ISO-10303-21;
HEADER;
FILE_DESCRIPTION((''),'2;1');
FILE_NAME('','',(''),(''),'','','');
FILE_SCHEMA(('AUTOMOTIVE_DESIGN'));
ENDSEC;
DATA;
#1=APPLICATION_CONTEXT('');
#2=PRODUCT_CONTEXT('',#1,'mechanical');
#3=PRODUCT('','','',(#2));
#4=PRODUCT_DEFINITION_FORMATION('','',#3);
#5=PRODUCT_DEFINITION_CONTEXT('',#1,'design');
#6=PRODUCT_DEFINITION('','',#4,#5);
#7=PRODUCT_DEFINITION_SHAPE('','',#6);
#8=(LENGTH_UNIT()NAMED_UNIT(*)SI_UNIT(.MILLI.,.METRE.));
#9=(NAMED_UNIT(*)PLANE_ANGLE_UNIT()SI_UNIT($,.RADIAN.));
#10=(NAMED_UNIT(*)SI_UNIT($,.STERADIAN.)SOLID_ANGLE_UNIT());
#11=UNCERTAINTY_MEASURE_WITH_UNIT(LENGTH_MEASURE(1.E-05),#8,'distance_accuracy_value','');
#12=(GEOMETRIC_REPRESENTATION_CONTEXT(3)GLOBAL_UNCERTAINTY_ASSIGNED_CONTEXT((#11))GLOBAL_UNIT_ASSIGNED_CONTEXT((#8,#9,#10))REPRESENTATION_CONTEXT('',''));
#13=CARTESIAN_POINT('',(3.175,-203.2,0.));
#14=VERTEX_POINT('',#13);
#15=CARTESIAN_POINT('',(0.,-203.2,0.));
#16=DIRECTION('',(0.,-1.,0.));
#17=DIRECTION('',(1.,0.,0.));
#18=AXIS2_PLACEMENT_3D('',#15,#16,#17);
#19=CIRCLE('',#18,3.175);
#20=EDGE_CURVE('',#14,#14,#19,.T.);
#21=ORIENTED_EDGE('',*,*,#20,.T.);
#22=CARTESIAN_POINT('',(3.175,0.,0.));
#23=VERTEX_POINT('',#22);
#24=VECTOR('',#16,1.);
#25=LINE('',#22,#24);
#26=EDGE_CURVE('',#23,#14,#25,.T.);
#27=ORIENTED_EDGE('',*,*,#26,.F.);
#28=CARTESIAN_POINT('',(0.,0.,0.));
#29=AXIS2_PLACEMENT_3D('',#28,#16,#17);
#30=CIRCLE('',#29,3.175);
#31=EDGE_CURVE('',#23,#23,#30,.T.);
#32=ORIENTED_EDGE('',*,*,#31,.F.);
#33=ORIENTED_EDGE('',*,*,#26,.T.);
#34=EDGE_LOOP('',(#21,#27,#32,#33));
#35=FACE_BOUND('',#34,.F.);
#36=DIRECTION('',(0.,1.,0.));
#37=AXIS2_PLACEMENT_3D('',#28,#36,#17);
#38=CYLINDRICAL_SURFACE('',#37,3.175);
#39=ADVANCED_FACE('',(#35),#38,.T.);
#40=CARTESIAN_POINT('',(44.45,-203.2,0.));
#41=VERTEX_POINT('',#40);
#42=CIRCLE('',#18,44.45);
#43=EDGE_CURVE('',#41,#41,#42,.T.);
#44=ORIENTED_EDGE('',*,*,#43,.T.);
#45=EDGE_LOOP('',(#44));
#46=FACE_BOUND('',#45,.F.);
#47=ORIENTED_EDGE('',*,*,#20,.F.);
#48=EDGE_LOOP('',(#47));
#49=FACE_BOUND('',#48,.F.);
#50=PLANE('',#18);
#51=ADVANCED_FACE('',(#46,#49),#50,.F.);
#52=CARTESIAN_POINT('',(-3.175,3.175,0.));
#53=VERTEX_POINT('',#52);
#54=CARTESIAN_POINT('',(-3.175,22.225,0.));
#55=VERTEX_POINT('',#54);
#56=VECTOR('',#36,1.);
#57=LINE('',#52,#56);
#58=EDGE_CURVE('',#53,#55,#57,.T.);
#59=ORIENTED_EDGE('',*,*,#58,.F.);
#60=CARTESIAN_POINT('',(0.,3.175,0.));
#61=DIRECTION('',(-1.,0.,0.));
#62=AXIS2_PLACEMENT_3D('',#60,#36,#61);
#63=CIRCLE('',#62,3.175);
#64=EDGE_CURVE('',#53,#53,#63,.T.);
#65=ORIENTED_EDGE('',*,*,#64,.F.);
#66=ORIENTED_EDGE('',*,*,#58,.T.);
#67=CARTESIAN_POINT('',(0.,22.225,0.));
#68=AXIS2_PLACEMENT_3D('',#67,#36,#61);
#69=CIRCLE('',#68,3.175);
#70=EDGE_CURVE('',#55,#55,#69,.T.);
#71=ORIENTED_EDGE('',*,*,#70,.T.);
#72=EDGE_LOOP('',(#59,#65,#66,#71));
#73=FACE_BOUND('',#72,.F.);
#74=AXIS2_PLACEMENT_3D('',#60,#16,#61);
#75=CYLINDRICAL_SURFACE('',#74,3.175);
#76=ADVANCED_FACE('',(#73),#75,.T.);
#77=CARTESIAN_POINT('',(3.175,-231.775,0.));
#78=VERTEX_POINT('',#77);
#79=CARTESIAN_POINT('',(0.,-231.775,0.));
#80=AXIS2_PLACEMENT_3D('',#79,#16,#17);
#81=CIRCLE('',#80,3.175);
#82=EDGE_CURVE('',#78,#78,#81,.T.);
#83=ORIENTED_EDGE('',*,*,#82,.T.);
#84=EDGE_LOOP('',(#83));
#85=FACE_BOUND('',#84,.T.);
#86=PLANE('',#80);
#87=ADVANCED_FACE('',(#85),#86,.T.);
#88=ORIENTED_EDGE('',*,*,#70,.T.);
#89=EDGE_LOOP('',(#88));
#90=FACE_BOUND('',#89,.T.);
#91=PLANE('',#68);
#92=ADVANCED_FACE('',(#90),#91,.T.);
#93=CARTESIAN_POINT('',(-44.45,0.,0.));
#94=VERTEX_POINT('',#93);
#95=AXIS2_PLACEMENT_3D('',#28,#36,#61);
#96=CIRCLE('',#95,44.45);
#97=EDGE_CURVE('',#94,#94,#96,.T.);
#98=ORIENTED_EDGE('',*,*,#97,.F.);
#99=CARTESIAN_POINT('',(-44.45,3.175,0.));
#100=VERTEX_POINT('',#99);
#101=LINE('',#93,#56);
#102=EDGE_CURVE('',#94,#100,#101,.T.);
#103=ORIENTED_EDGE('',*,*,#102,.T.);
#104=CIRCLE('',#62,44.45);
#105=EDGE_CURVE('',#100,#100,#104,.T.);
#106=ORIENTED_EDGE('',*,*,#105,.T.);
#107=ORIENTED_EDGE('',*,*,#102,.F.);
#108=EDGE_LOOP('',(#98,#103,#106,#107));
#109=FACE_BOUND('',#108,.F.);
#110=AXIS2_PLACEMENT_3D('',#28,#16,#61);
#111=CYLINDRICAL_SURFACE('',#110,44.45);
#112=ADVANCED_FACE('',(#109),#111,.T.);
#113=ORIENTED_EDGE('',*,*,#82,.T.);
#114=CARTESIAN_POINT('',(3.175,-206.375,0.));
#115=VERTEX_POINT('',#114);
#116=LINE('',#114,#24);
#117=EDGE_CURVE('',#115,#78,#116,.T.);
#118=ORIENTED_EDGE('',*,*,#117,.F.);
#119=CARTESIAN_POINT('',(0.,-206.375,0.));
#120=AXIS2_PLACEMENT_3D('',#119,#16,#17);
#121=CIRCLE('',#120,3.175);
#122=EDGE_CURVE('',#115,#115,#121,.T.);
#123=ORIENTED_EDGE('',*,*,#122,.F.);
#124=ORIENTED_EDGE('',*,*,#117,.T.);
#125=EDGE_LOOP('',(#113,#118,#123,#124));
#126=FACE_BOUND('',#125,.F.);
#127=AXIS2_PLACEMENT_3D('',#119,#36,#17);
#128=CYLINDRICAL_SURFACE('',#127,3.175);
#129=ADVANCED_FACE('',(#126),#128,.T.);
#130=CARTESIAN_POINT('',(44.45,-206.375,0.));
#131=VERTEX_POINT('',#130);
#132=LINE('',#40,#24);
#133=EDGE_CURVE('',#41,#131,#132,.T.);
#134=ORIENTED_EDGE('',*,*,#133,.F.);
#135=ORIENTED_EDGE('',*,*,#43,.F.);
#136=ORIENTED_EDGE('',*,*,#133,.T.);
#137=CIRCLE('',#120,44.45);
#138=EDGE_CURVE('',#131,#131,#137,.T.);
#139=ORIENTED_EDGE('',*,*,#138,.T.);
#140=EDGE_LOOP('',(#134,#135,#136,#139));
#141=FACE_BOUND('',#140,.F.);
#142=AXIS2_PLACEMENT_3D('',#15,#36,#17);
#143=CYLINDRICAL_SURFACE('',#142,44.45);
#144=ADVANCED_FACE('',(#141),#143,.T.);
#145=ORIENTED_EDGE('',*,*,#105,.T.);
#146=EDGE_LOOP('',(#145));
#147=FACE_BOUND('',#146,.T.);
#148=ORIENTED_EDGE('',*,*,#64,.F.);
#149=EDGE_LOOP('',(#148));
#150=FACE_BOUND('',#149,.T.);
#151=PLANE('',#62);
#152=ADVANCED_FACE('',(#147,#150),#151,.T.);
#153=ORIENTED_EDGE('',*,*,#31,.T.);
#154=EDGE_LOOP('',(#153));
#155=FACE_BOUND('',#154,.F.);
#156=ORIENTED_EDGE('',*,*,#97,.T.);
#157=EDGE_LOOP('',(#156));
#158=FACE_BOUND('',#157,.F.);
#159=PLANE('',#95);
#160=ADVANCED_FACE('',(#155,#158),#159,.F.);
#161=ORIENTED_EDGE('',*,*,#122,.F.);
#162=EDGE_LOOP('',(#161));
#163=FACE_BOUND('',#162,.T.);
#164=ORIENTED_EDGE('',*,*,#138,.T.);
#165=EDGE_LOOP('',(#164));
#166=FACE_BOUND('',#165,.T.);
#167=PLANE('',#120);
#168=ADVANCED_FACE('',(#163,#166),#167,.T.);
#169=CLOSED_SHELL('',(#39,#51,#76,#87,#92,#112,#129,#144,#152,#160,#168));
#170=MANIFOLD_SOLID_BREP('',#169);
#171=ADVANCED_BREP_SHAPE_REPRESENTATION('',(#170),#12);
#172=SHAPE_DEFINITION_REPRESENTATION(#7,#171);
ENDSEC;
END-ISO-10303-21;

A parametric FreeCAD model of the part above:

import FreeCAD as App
import Part
import Sketcher

V = App.Vector
Q = App.Units.Quantity

doc = App.newDocument("Part")
body = doc.addObject("PartDesign::Body", "Body")

# Sketch on XZ plane
sketch1 = body.newObject("Sketcher::SketchObject", "Sketch")
sketch1.AttachmentSupport = (doc.getObject("XZ_Plane"), [""])
sketch1.MapMode = "FlatFace"
sketch1.addGeometry(Part.Circle(V(0, 0, 0), V(0, 0, 1), 3.175), False)
sketch1.addConstraint([
    Sketcher.Constraint("Coincident", 0, 3, -1, 1),
    Sketcher.Constraint("Diameter", 0, Q("0.25 in")),
])
pad1 = body.newObject("PartDesign::Pad", "Pad")
pad1.Profile = sketch1
pad1.Length = Q("8 in")

# Sketch on XZ plane
sketch2 = body.newObject("Sketcher::SketchObject", "Sketch001")
sketch2.AttachmentSupport = (doc.getObject("XZ_Plane"), [""])
sketch2.MapMode = "FlatFace"
sketch2.AttachmentOffset = App.Placement(V(0, 0, 8 * 25.4), App.Rotation())
sketch2.addGeometry(Part.Circle(V(0, 0, 0), V(0, 0, 1), 44.45), False)
sketch2.addConstraint([
    Sketcher.Constraint("Coincident", 0, 3, -1, 1),
    Sketcher.Constraint("Diameter", 0, Q("3.5 in")),
])
pad2 = body.newObject("PartDesign::Pad", "Pad001")
pad2.Profile = sketch2
pad2.Length = Q("0.125 in")

# Sketch on XZ plane
sketch3 = body.newObject("Sketcher::SketchObject", "Sketch002")
sketch3.AttachmentSupport = (doc.getObject("XZ_Plane"), [""])
sketch3.MapMode = "FlatFace"
sketch3.addGeometry(Part.Circle(V(0, 0, 0), V(0, 0, 1), 44.45), False)
sketch3.addConstraint([
    Sketcher.Constraint("Coincident", 0, 3, -1, 1),
    Sketcher.Constraint("Diameter", 0, Q("3.5 in")),
])
pad3 = body.newObject("PartDesign::Pad", "Pad002")
pad3.Profile = sketch3
pad3.Length = Q("0.125 in")
pad3.Reversed = True

# Sketch on XZ plane
sketch4 = body.newObject("Sketcher::SketchObject", "Sketch003")
sketch4.AttachmentSupport = (doc.getObject("XZ_Plane"), [""])
sketch4.MapMode = "FlatFace"
sketch4.AttachmentOffset = App.Placement(V(0, 0, 8.125 * 25.4), App.Rotation())
sketch4.addGeometry(Part.Circle(V(0, 0, 0), V(0, 0, 1), 3.175), False)
sketch4.addConstraint([
    Sketcher.Constraint("Coincident", 0, 3, -1, 1),
    Sketcher.Constraint("Diameter", 0, Q("0.25 in")),
])
pad4 = body.newObject("PartDesign::Pad", "Pad003")
pad4.Profile = sketch4
pad4.Length = Q("1 in")

# Sketch on XZ plane
sketch5 = body.newObject("Sketcher::SketchObject", "Sketch004")
sketch5.AttachmentSupport = (doc.getObject("XZ_Plane"), [""])
sketch5.MapMode = "FlatFace"
sketch5.AttachmentOffset = App.Placement(V(0, 0, -0.125 * 25.4), App.Rotation())
sketch5.addGeometry(Part.Circle(V(0, 0, 0), V(0, 0, 1), 3.175), False)
sketch5.addConstraint([
    Sketcher.Constraint("Coincident", 0, 3, -1, 1),
    Sketcher.Constraint("Diameter", 0, Q("0.25 in")),
])
pad5 = body.newObject("PartDesign::Pad", "Pad004")
pad5.Profile = sketch5
pad5.Length = Q("0.75 in")
pad5.Reversed = True

doc.recompute()
